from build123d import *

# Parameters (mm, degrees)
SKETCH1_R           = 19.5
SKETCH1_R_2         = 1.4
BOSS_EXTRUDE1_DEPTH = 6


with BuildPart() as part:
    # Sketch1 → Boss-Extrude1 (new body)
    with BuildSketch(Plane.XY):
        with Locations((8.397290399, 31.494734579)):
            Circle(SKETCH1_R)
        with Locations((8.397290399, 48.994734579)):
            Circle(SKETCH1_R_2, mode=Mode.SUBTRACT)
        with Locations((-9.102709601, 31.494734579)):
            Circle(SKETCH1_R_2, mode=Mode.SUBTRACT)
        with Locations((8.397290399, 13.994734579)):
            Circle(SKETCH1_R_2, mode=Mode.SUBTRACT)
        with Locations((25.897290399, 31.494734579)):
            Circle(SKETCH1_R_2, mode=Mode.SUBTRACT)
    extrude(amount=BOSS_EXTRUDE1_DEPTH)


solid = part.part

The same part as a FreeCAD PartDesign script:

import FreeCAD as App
import Part
import Sketcher

V = App.Vector

doc = App.newDocument("Part")
body = doc.addObject("PartDesign::Body", "Body")

# Sketch on XY plane
sketch1 = body.newObject("Sketcher::SketchObject", "Sketch")
sketch1.AttachmentSupport = (doc.getObject("XY_Plane"), [""])
sketch1.MapMode = "FlatFace"
sketch1.addGeometry(Part.Circle(V(8.39729, 31.494735, 0), V(0, 0, 1), 19.5), False)
sketch1.addGeometry(Part.Circle(V(8.39729, 13.994735, 0), V(0, 0, 1), 1.4), False)
sketch1.addGeometry(Part.Circle(V(-9.10271, 31.494735, 0), V(0, 0, 1), 1.4), False)
sketch1.addGeometry(Part.Circle(V(25.89729, 31.494735, 0), V(0, 0, 1), 1.4), False)
sketch1.addGeometry(Part.Circle(V(8.39729, 48.994735, 0), V(0, 0, 1), 1.4), False)
sketch1.addConstraint(Sketcher.Constraint("Equal", 1, 2))
sketch1.addConstraint(Sketcher.Constraint("Equal", 2, 3))
sketch1.addConstraint(Sketcher.Constraint("Equal", 3, 4))
sketch1.addConstraint(Sketcher.Constraint("Horizontal", 0, 3, 2, 3))
sketch1.addConstraint(Sketcher.Constraint("Horizontal", 2, 3, 3, 3))
sketch1.addConstraint(Sketcher.Constraint("Vertical", 0, 3, 1, 3))
sketch1.addConstraint(Sketcher.Constraint("Vertical", 1, 3, 4, 3))
sketch1.addConstraint(Sketcher.Constraint("Diameter", 0, 39.0))
sketch1.addConstraint(Sketcher.Constraint("Diameter", 1, 2.8))
sketch1.addConstraint(Sketcher.Constraint("DistanceX", 2, 3, 3, 3, 35.0))
sketch1.addConstraint(Sketcher.Constraint("DistanceY", 1, 3, 4, 3, 35.0))
sketch1.addConstraint(Sketcher.Constraint("DistanceY", 1, 3, 0, 3, 17.5))
sketch1.addConstraint(Sketcher.Constraint("DistanceX", 2, 3, 0, 3, 17.5))
sketch1.addConstraint(Sketcher.Constraint("DistanceX", -1, 1, 0, 3, 8.39729))
sketch1.addConstraint(Sketcher.Constraint("DistanceY", -1, 1, 0, 3, 31.494735))
pad1 = body.newObject("PartDesign::Pad", "Pad")
pad1.Profile = sketch1
pad1.Length = 6

doc.recompute()
